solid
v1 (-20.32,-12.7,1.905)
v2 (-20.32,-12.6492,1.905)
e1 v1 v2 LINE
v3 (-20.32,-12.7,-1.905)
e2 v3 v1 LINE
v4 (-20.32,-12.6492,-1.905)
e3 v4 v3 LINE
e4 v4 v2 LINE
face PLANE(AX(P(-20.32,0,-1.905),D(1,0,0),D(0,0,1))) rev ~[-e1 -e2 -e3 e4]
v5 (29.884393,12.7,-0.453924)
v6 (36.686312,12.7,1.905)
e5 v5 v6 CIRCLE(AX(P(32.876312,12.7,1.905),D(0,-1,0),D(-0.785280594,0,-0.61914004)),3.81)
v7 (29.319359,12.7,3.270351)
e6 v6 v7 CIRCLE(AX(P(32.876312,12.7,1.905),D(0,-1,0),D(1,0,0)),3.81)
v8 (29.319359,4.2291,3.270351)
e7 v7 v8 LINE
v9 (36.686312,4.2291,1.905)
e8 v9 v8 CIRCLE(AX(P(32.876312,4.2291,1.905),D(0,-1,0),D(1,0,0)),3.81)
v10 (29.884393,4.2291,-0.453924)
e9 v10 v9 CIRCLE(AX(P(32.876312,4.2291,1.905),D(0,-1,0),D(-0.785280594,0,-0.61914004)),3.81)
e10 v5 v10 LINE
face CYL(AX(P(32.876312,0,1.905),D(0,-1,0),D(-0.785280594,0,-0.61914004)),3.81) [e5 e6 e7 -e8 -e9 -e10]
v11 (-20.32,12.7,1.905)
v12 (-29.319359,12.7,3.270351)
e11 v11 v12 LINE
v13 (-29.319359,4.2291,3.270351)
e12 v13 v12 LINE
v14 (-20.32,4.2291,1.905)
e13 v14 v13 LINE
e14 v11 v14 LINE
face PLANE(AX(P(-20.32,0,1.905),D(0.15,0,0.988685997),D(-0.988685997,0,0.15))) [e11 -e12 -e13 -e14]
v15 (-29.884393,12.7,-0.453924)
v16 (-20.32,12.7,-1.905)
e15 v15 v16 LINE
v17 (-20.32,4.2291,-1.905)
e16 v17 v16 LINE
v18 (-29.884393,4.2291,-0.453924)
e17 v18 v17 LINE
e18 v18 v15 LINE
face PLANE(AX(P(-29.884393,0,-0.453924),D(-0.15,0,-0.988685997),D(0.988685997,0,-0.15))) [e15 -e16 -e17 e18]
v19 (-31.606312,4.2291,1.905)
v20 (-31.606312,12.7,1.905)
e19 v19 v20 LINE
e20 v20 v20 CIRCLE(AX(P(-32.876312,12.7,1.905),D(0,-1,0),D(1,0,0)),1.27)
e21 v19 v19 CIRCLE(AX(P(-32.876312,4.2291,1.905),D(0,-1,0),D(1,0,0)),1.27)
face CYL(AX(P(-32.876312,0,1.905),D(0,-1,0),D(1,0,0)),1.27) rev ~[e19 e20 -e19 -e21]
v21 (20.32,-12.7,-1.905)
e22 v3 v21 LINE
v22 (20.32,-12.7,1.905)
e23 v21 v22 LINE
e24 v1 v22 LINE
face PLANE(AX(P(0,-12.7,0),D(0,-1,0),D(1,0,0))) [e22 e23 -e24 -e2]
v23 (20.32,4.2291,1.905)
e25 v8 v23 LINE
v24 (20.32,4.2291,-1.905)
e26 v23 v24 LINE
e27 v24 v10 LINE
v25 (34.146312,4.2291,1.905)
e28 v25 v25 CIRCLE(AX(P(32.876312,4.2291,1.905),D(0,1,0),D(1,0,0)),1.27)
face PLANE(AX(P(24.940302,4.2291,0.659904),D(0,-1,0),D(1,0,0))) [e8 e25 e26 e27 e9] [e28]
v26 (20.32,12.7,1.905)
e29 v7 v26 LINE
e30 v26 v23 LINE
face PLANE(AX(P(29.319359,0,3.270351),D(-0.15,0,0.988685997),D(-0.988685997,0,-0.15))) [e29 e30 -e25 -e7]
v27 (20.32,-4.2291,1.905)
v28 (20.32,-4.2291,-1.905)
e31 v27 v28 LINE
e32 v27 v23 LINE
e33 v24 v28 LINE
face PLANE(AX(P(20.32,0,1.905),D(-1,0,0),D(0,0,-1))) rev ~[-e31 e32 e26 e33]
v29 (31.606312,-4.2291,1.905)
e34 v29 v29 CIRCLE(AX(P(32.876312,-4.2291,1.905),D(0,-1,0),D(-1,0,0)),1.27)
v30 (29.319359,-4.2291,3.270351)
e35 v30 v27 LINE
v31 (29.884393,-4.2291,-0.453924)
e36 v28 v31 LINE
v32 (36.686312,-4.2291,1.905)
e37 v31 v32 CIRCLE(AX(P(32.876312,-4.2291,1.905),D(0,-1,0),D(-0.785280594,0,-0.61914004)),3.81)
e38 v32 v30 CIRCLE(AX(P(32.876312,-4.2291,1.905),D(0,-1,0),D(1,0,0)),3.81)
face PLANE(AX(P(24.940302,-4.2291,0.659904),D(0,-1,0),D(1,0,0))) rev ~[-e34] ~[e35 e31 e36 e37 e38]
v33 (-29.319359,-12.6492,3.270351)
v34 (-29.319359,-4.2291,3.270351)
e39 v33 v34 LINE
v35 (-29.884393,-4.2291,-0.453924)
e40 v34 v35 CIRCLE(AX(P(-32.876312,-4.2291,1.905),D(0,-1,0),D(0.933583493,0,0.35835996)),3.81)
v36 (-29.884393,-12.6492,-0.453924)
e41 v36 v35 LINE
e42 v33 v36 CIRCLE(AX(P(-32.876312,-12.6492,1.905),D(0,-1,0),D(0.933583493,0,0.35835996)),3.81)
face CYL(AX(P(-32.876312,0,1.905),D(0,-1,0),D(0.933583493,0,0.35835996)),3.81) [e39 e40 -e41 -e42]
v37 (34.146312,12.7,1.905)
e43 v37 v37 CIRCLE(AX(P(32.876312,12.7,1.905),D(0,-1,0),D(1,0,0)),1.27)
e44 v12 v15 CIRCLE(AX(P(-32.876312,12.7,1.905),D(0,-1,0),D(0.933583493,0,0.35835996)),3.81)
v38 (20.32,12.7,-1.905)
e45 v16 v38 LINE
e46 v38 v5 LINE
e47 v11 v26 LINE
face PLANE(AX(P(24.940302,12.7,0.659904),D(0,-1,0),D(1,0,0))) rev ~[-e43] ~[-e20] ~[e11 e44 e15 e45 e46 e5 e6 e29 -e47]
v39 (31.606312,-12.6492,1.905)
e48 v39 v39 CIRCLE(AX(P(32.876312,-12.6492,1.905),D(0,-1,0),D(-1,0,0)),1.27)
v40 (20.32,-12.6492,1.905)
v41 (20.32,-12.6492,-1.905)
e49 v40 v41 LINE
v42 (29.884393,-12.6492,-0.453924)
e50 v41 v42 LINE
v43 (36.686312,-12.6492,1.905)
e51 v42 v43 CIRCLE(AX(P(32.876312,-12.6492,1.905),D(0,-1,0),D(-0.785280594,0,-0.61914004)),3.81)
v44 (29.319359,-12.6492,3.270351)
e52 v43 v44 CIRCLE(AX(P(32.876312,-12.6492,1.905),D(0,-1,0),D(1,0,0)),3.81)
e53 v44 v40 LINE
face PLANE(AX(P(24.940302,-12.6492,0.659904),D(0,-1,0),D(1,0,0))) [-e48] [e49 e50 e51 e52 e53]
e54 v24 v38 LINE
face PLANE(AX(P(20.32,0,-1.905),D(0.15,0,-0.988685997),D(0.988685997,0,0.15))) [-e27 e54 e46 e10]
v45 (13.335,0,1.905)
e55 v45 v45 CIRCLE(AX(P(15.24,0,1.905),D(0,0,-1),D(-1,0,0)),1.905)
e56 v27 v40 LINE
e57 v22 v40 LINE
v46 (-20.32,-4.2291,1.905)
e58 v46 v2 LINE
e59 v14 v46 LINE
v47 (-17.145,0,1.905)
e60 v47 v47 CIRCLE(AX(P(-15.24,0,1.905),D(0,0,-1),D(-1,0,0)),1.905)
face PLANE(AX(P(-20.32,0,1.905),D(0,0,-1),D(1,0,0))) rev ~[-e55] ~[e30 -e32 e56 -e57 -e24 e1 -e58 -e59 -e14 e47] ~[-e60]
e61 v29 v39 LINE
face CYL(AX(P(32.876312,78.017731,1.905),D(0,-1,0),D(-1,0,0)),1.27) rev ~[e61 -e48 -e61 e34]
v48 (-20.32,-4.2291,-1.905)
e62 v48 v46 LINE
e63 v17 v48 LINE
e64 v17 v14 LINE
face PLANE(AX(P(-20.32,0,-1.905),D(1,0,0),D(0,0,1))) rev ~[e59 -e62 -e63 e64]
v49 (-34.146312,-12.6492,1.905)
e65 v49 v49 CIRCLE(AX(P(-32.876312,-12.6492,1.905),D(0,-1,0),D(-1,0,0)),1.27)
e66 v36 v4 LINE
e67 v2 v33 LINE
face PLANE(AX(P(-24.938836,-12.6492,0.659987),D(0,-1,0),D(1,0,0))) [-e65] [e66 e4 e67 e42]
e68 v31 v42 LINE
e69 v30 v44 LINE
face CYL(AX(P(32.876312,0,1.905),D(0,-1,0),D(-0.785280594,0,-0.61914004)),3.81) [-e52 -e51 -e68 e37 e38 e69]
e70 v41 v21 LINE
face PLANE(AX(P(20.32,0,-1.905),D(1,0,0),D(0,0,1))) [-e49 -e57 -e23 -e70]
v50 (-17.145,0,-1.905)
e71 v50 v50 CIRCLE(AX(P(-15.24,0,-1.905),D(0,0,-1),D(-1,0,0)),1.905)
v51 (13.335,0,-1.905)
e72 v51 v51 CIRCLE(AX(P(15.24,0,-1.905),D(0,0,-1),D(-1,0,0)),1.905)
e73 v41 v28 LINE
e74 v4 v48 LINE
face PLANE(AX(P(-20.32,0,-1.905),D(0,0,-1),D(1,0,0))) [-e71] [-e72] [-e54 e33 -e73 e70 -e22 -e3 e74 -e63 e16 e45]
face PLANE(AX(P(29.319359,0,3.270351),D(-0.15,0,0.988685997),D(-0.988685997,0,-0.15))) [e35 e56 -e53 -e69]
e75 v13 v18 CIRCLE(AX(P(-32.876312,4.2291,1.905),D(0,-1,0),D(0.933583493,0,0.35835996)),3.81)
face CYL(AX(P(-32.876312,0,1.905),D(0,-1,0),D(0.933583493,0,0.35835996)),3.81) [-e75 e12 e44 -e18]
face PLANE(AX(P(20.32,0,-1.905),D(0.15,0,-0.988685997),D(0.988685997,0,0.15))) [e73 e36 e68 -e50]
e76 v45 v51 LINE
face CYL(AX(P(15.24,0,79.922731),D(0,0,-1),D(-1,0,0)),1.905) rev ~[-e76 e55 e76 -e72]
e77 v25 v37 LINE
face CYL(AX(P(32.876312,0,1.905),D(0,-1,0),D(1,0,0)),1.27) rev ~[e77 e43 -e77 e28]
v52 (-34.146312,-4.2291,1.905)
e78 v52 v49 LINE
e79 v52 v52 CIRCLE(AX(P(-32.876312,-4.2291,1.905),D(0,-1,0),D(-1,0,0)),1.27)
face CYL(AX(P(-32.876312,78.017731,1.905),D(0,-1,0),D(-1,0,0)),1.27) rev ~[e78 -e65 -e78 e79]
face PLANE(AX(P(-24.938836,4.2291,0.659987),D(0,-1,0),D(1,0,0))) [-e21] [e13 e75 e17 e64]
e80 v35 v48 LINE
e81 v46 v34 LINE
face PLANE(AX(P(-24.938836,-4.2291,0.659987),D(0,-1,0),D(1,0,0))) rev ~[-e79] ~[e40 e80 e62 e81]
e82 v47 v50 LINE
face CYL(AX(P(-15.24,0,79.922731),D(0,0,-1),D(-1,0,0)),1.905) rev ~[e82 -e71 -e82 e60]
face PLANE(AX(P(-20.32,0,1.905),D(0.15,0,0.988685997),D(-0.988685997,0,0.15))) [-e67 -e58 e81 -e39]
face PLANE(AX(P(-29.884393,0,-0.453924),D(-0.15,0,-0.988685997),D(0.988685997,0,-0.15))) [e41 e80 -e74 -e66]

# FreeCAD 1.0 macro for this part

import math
import FreeCAD as App
import Part
import Sketcher
Q = App.Units.Quantity


def add_polygon(sketch, points):
    """Adds a closed chain of lines whose ends are joined by coincident constraints."""
    first, n = sketch.GeometryCount, len(points)
    for a, b in zip(points, points[1:] + points[:1]):
        sketch.addGeometry(Part.LineSegment(App.Vector(*a, 0), App.Vector(*b, 0)), False)
    for i in range(n):
        sketch.addConstraint(Sketcher.Constraint("Coincident", first + i, 2, first + (i + 1) % n, 1))

doc = App.newDocument("Part")
body = doc.addObject("PartDesign::Body", "Body")

# Sketch on XZ plane
sketch1 = doc.addObject("Sketcher::SketchObject", "Sketch")
body.addObject(sketch1)
sketch1.AttachmentSupport = (doc.XZ_Plane, [""])
sketch1.MapMode = "FlatFace"
add_polygon(sketch1, [(-20.3, 1.9), (-20.3, -1.9), (20.3, -1.9), (20.3, 1.9)])  # lines 0-3
sketch1.addConstraint(Sketcher.Constraint("Vertical", 0))
sketch1.addConstraint(Sketcher.Constraint("Horizontal", 1))
sketch1.addConstraint(Sketcher.Constraint("Vertical", 2))
sketch1.addConstraint(Sketcher.Constraint("Horizontal", 3))
sketch1.addConstraint(Sketcher.Constraint("Symmetric", 0, 2, 2, 2, -1, 1))
sketch1.addConstraint(Sketcher.Constraint("DistanceX", 1, 1, 1, 2, Q("1.6 in")))
sketch1.addConstraint(Sketcher.Constraint("DistanceY", 0, 2, 0, 1, Q("0.15 in")))
pad1 = doc.addObject("PartDesign::Pad", "Pad")
body.addObject(pad1)
pad1.Profile = sketch1
pad1.Length = Q("1 in")
pad1.Midplane = True

# Sketch on XZ plane
sketch2 = doc.addObject("Sketcher::SketchObject", "Sketch001")
body.addObject(sketch2)
sketch2.AttachmentSupport = (doc.XZ_Plane, [""])
sketch2.MapMode = "FlatFace"
sketch2.addGeometry(Part.LineSegment(App.Vector(20.3, 1.9, 0), App.Vector(20.3, -1.9, 0)), False)
sketch2.addGeometry(Part.LineSegment(App.Vector(20.3, -1.9, 0), App.Vector(29.9, -0.5, 0)), False)
sketch2.addGeometry(Part.ArcOfCircle(Part.Circle(App.Vector(32.9, 1.9, 0), App.Vector(0, 0, 1), 3.8), math.radians(-142), math.radians(0)), False)
sketch2.addGeometry(Part.ArcOfCircle(Part.Circle(App.Vector(32.9, 1.9, 0), App.Vector(0, 0, 1), 3.8), math.radians(0), math.radians(159)), False)
sketch2.addGeometry(Part.LineSegment(App.Vector(29.3, 3.3, 0), App.Vector(20.3, 1.9, 0)), False)
sketch2.addGeometry(Part.LineSegment(App.Vector(-29.9, -0.5, 0), App.Vector(-20.3, -1.9, 0)), False)
sketch2.addGeometry(Part.LineSegment(App.Vector(-20.3, -1.9, 0), App.Vector(-20.3, 1.9, 0)), False)
sketch2.addGeometry(Part.LineSegment(App.Vector(-20.3, 1.9, 0), App.Vector(-29.3, 3.3, 0)), False)
sketch2.addGeometry(Part.ArcOfCircle(Part.Circle(App.Vector(-32.9, 1.9, 0), App.Vector(0, 0, 1), 3.8), math.radians(21), math.radians(322)), False)
sketch2.addConstraint(Sketcher.Constraint("Coincident", 0, 2, 1, 1))
sketch2.addConstraint(Sketcher.Constraint("Coincident", 1, 2, 2, 1))
sketch2.addConstraint(Sketcher.Constraint("Tangent", 2, 2, 3, 1))
sketch2.addConstraint(Sketcher.Constraint("Coincident", 3, 2, 4, 1))
sketch2.addConstraint(Sketcher.Constraint("Coincident", 4, 2, 0, 1))
sketch2.addConstraint(Sketcher.Constraint("Coincident", 5, 2, 6, 1))
sketch2.addConstraint(Sketcher.Constraint("Coincident", 6, 2, 7, 1))
sketch2.addConstraint(Sketcher.Constraint("Coincident", 7, 2, 8, 1))
sketch2.addConstraint(Sketcher.Constraint("Coincident", 8, 2, 5, 1))
sketch2.addConstraint(Sketcher.Constraint("Vertical", 0))
sketch2.addConstraint(Sketcher.Constraint("Vertical", 6))
sketch2.addConstraint(Sketcher.Constraint("Equal", 2, 3))
sketch2.addConstraint(Sketcher.Constraint("Equal", 3, 8))
sketch2.addConstraint(Sketcher.Constraint("Symmetric", 4, 2, 5, 2, -1, 1))
sketch2.addConstraint(Sketcher.Constraint("Symmetric", 2, 3, 8, 3, -2))
sketch2.addConstraint(Sketcher.Constraint("Parallel", 1, 4))
sketch2.addConstraint(Sketcher.Constraint("Parallel", 5, 7))
sketch2.addConstraint(Sketcher.Constraint("Horizontal", 8, 3, 2, 2))
sketch2.addConstraint(Sketcher.Constraint("Horizontal", 2, 2, 4, 2))
sketch2.addConstraint(Sketcher.Constraint("Horizontal", 0, 2, 5, 2))
sketch2.addConstraint(Sketcher.Constraint("Horizontal", 4, 2, 6, 2))
sketch2.addConstraint(Sketcher.Constraint("Horizontal", 3, 2, 7, 2))
sketch2.addConstraint(Sketcher.Constraint("Radius", 2, Q("0.15 in")))
sketch2.addConstraint(Sketcher.Constraint("DistanceY", 0, 2, 0, 1, Q("0.15 in")))
sketch2.addConstraint(Sketcher.Constraint("DistanceX", -1, 1, 0, 2, Q("0.8 in")))
sketch2.addConstraint(Sketcher.Constraint("DistanceX", -1, 1, 3, 2, Q("29.319359 mm")))
sketch2.addConstraint(Sketcher.Constraint("DistanceY", -1, 1, 3, 2, Q("3.270351 mm")))
pad2 = doc.addObject("PartDesign::Pad", "Pad001")
body.addObject(pad2)
pad2.Profile = sketch2
pad2.Type = "TwoLengths"
pad2.Length = Q("0.498 in")
pad2.Length2 = Q("0.5 in")

# Sketch on XZ plane
sketch3 = doc.addObject("Sketcher::SketchObject", "Sketch002")
body.addObject(sketch3)
sketch3.AttachmentSupport = (doc.XZ_Plane, [""])
sketch3.MapMode = "FlatFace"
sketch3.addGeometry(Part.Circle(App.Vector(-32.9, 1.9, 0), App.Vector(0, 0, 1), 1.3), False)
sketch3.addGeometry(Part.Circle(App.Vector(32.9, 1.9, 0), App.Vector(0, 0, 1), 1.3), False)
sketch3.addConstraint(Sketcher.Constraint("Equal", 0, 1))
sketch3.addConstraint(Sketcher.Constraint("Symmetric", 0, 3, 1, 3, -2))
sketch3.addConstraint(Sketcher.Constraint("Diameter", 0, Q("0.1 in")))
sketch3.addConstraint(Sketcher.Constraint("DistanceY", -1, 1, 0, 3, Q("0.075 in")))
sketch3.addConstraint(Sketcher.Constraint("DistanceX", 0, 3, -1, 1, Q("32.876312 mm")))
pocket1 = doc.addObject("PartDesign::Pocket", "Pocket")
body.addObject(pocket1)
pocket1.Profile = sketch3
pocket1.Type = "ThroughAll"

# Sketch on XZ plane
sketch4 = doc.addObject("Sketcher::SketchObject", "Sketch003")
body.addObject(sketch4)
sketch4.AttachmentSupport = (doc.XZ_Plane, [""])
sketch4.MapMode = "FlatFace"
sketch4.addGeometry(Part.Circle(App.Vector(32.9, 1.9, 0), App.Vector(0, 0, 1), 1.3), False)
sketch4.addGeometry(Part.Circle(App.Vector(-32.9, 1.9, 0), App.Vector(0, 0, 1), 1.3), False)
sketch4.addConstraint(Sketcher.Constraint("Equal", 0, 1))
sketch4.addConstraint(Sketcher.Constraint("Symmetric", 0, 3, 1, 3, -2))
sketch4.addConstraint(Sketcher.Constraint("Diameter", 0, Q("0.1 in")))
sketch4.addConstraint(Sketcher.Constraint("DistanceY", -1, 1, 0, 3, Q("0.075 in")))
sketch4.addConstraint(Sketcher.Constraint("DistanceX", -1, 1, 0, 3, Q("32.876312 mm")))
doc.recompute()
hole = doc.addObject("PartDesign::Hole", "Hole")
body.addObject(hole)
hole.Profile = sketch4
hole.ThreadType = "None"
hole.Diameter = Q("0.1 in")
hole.DepthType = "ThroughAll"
hole.Reversed = True

# Sketch on XZ plane
sketch5 = doc.addObject("Sketcher::SketchObject", "Sketch004")
body.addObject(sketch5)
sketch5.AttachmentSupport = (doc.XZ_Plane, [""])
sketch5.MapMode = "FlatFace"
sketch5.addGeometry(Part.LineSegment(App.Vector(20.3, 1.9, 0), App.Vector(20.3, -1.9, 0)), False)
sketch5.addGeometry(Part.LineSegment(App.Vector(20.3, -1.9, 0), App.Vector(29.9, -0.5, 0)), False)
sketch5.addGeometry(Part.ArcOfCircle(Part.Circle(App.Vector(32.9, 1.9, 0), App.Vector(0, 0, 1), 3.8), math.radians(-142), math.radians(0)), False)
sketch5.addGeometry(Part.ArcOfCircle(Part.Circle(App.Vector(32.9, 1.9, 0), App.Vector(0, 0, 1), 3.8), math.radians(0), math.radians(159)), False)
sketch5.addGeometry(Part.LineSegment(App.Vector(29.3, 3.3, 0), App.Vector(20.3, 1.9, 0)), False)
sketch5.addConstraint(Sketcher.Constraint("Coincident", 0, 2, 1, 1))
sketch5.addConstraint(Sketcher.Constraint("Coincident", 1, 2, 2, 1))
sketch5.addConstraint(Sketcher.Constraint("Tangent", 2, 2, 3, 1))
sketch5.addConstraint(Sketcher.Constraint("Coincident", 3, 2, 4, 1))
sketch5.addConstraint(Sketcher.Constraint("Coincident", 4, 2, 0, 1))
sketch5.addConstraint(Sketcher.Constraint("Vertical", 0))
sketch5.addConstraint(Sketcher.Constraint("Equal", 2, 3))
sketch5.addConstraint(Sketcher.Constraint("Parallel", 1, 4))
sketch5.addConstraint(Sketcher.Constraint("Horizontal", 3, 3, 2, 2))
sketch5.addConstraint(Sketcher.Constraint("Horizontal", 2, 2, 4, 2))
sketch5.addConstraint(Sketcher.Constraint("Radius", 2, Q("0.15 in")))
sketch5.addConstraint(Sketcher.Constraint("DistanceY", 0, 2, 0, 1, Q("0.15 in")))
sketch5.addConstraint(Sketcher.Constraint("DistanceX", -1, 1, 0, 2, Q("0.8 in")))
sketch5.addConstraint(Sketcher.Constraint("DistanceY", -1, 1, 2, 3, Q("0.075 in")))
sketch5.addConstraint(Sketcher.Constraint("DistanceX", -1, 1, 3, 2, Q("29.319359 mm")))
sketch5.addConstraint(Sketcher.Constraint("DistanceY", -1, 1, 3, 2, Q("3.270351 mm")))
pocket2 = doc.addObject("PartDesign::Pocket", "Pocket001")
body.addObject(pocket2)
pocket2.Profile = sketch5
pocket2.Length = Q("0.333 in")
pocket2.Midplane = True

# Sketch on XZ plane
sketch6 = doc.addObject("Sketcher::SketchObject", "Sketch005")
body.addObject(sketch6)
sketch6.AttachmentSupport = (doc.XZ_Plane, [""])
sketch6.MapMode = "FlatFace"
sketch6.addGeometry(Part.LineSegment(App.Vector(-29.9, -0.5, 0), App.Vector(-20.3, -1.9, 0)), False)
sketch6.addGeometry(Part.LineSegment(App.Vector(-20.3, -1.9, 0), App.Vector(-20.3, 1.9, 0)), False)
sketch6.addGeometry(Part.LineSegment(App.Vector(-20.3, 1.9, 0), App.Vector(-29.3, 3.3, 0)), False)
sketch6.addGeometry(Part.ArcOfCircle(Part.Circle(App.Vector(-32.9, 1.9, 0), App.Vector(0, 0, 1), 3.8), math.radians(21), math.radians(322)), False)
sketch6.addConstraint(Sketcher.Constraint("Coincident", 0, 2, 1, 1))
sketch6.addConstraint(Sketcher.Constraint("Coincident", 1, 2, 2, 1))
sketch6.addConstraint(Sketcher.Constraint("Coincident", 2, 2, 3, 1))
sketch6.addConstraint(Sketcher.Constraint("Coincident", 3, 2, 0, 1))
sketch6.addConstraint(Sketcher.Constraint("Vertical", 1))
sketch6.addConstraint(Sketcher.Constraint("Parallel", 0, 2))
sketch6.addConstraint(Sketcher.Constraint("Horizontal", 3, 3, 1, 2))
sketch6.addConstraint(Sketcher.Constraint("Radius", 3, Q("0.15 in")))
sketch6.addConstraint(Sketcher.Constraint("DistanceY", 1, 1, 1, 2, Q("0.15 in")))
sketch6.addConstraint(Sketcher.Constraint("DistanceX", 0, 2, -1, 1, Q("0.8 in")))
sketch6.addConstraint(Sketcher.Constraint("DistanceY", -1, 1, 3, 3, Q("0.075 in")))
sketch6.addConstraint(Sketcher.Constraint("DistanceX", 2, 2, -1, 1, Q("29.319359 mm")))
sketch6.addConstraint(Sketcher.Constraint("DistanceY", -1, 1, 2, 2, Q("3.270351 mm")))
pocket3 = doc.addObject("PartDesign::Pocket", "Pocket002")
body.addObject(pocket3)
pocket3.Profile = sketch6
pocket3.Length = Q("0.333 in")
pocket3.Midplane = True

# Sketch on XY plane
sketch7 = doc.addObject("Sketcher::SketchObject", "Sketch006")
body.addObject(sketch7)
sketch7.AttachmentSupport = (doc.XY_Plane, [""])
sketch7.MapMode = "FlatFace"
sketch7.AttachmentOffset = App.Placement(App.Vector(0, 0, 0.075 * 25.4), App.Rotation())
sketch7.addGeometry(Part.Circle(App.Vector(-15.2, 0, 0), App.Vector(0, 0, 1), 1.9), False)
sketch7.addGeometry(Part.Circle(App.Vector(15.2, 0, 0), App.Vector(0, 0, 1), 1.9), False)
sketch7.addConstraint(Sketcher.Constraint("Equal", 0, 1))
sketch7.addConstraint(Sketcher.Constraint("Symmetric", 0, 3, 1, 3, -1, 1))
sketch7.addConstraint(Sketcher.Constraint("PointOnObject", 0, 3, -1))
sketch7.addConstraint(Sketcher.Constraint("Diameter", 0, Q("0.15 in")))
sketch7.addConstraint(Sketcher.Constraint("DistanceX", 0, 3, -1, 1, Q("0.6 in")))
doc.recompute()
hole2 = doc.addObject("PartDesign::Hole", "Hole001")
body.addObject(hole2)
hole2.Profile = sketch7
hole2.ThreadType = "None"
hole2.Diameter = Q("0.15 in")
hole2.DepthType = "ThroughAll"

doc.recompute()
